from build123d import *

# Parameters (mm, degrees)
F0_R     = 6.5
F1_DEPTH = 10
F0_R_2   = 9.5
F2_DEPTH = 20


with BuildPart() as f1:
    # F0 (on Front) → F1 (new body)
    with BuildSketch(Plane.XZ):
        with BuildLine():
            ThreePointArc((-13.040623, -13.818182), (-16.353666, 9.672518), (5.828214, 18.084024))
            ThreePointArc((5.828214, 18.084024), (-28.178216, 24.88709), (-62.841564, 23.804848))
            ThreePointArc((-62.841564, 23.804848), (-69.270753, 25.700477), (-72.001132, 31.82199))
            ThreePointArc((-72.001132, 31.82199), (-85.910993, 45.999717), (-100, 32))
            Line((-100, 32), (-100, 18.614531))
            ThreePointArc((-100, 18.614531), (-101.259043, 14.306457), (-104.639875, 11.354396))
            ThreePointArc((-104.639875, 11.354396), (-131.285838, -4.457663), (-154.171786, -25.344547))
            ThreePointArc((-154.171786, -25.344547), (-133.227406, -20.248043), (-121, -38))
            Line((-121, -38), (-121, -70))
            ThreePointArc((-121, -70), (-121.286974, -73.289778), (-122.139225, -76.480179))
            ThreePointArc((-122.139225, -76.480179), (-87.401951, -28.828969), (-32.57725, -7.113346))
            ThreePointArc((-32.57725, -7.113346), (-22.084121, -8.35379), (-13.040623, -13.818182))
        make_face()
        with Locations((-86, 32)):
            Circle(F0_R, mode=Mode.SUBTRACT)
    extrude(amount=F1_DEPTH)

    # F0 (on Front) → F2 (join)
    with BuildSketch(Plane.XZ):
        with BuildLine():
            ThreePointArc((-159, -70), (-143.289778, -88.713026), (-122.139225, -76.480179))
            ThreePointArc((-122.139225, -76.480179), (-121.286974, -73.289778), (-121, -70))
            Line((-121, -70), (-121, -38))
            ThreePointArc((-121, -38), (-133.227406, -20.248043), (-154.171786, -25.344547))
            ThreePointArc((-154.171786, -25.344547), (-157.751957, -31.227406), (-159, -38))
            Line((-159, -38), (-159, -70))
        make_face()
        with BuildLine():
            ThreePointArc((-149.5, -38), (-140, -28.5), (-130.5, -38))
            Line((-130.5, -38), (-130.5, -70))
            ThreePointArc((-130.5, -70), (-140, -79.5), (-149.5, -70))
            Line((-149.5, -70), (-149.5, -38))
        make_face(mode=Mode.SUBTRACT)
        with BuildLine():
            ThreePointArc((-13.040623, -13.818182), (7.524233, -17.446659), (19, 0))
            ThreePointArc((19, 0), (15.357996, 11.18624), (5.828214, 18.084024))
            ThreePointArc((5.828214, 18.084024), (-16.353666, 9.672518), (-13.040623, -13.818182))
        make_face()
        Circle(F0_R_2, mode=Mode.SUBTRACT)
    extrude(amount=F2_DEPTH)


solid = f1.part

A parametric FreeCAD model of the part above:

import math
import FreeCAD as App
import Part
import Sketcher
Q = App.Units.Quantity

doc = App.newDocument("Part")
params = doc.addObject("Spreadsheet::Sheet", "Params")
for row, (alias, value) in enumerate([
    ("sketch1_diameter", "13 mm"),
    ("sketch1_radius", "19 mm"),
    ("sketch1_radius2", "8.000001 mm"),
    ("sketch1_radius3", "14 mm"),
    ("sketch1_radius4", "106 mm"),
    ("pad1_length", "10 mm"),
    ("sketch2_diameter", "19 mm"),
    ("sketch2_radius", "19 mm"),
    ("sketch2_radius2", "19 mm"),
    ("sketch2_radius3", "19 mm"),
    ("sketch2_radius4", "9.5 mm"),
    ("pad2_length", "20 mm"),
], start=1):
    params.set(f"A{row}", alias)
    params.set(f"B{row}", "=" + value)
    params.setAlias(f"B{row}", alias)

body = doc.addObject("PartDesign::Body", "Body")

sketch1 = body.newObject("Sketcher::SketchObject", "Sketch")
sketch1.AttachmentSupport = (doc.getObject("XZ_Plane"), [""])
sketch1.MapMode = "FlatFace"
sketch1.addGeometry(Part.ArcOfCircle(Part.Circle(App.Vector(0, 0, 0), App.Vector(0, 0, 1), 19), math.radians(72), math.radians(227)), False)
sketch1.addGeometry(Part.ArcOfCircle(Part.Circle(App.Vector(-41, -127, 0), App.Vector(0, 0, 1), 152), math.radians(72), math.radians(98)), False)
sketch1.addGeometry(Part.ArcOfCircle(Part.Circle(App.Vector(-64, 32, 0), App.Vector(0, 0, 1), 8), math.radians(179), math.radians(278)), False)
sketch1.addGeometry(Part.ArcOfCircle(Part.Circle(App.Vector(-86, 32, 0), App.Vector(0, 0, 1), 14), math.radians(-1), math.radians(180)), False)
sketch1.addGeometry(Part.LineSegment(App.Vector(-100, 32, 0), App.Vector(-100, 19, 0)), False)
sketch1.addGeometry(Part.ArcOfCircle(Part.Circle(App.Vector(-108, 19, 0), App.Vector(0, 0, 1), 8), math.radians(-65), math.radians(0)), False)
sketch1.addGeometry(Part.ArcOfCircle(Part.Circle(App.Vector(-41, -127, 0), App.Vector(0, 0, 1), 152), math.radians(115), math.radians(138)), False)
sketch1.addGeometry(Part.ArcOfCircle(Part.Circle(App.Vector(-140, -38, 0), App.Vector(0, 0, 1), 19), math.radians(0), math.radians(138)), False)
sketch1.addGeometry(Part.LineSegment(App.Vector(-121, -38, 0), App.Vector(-121, -70, 0)), False)
sketch1.addGeometry(Part.ArcOfCircle(Part.Circle(App.Vector(-140, -70, 0), App.Vector(0, 0, 1), 19), math.radians(-19.94), math.radians(0)), False)
sketch1.addGeometry(Part.ArcOfCircle(Part.Circle(App.Vector(-22, -113, 0), App.Vector(0, 0, 1), 106), math.radians(95), math.radians(160)), False)
sketch1.addGeometry(Part.ArcOfCircle(Part.Circle(App.Vector(-30, -32, 0), App.Vector(0, 0, 1), 25), math.radians(47), math.radians(95)), False)
sketch1.addGeometry(Part.Circle(App.Vector(-86, 32, 0), App.Vector(0, 0, 1), 6), False)
sketch1.addConstraint(Sketcher.Constraint("Tangent", 0, 1, 1, 1))
sketch1.addConstraint(Sketcher.Constraint("Tangent", 1, 2, 2, 2))
sketch1.addConstraint(Sketcher.Constraint("Tangent", 2, 1, 3, 1))
sketch1.addConstraint(Sketcher.Constraint("Tangent", 3, 2, 4, 1))
sketch1.addConstraint(Sketcher.Constraint("Tangent", 4, 2, 5, 2))
sketch1.addConstraint(Sketcher.Constraint("Tangent", 5, 1, 6, 1))
sketch1.addConstraint(Sketcher.Constraint("Tangent", 6, 2, 7, 2))
sketch1.addConstraint(Sketcher.Constraint("Tangent", 7, 1, 8, 1))
sketch1.addConstraint(Sketcher.Constraint("Tangent", 8, 2, 9, 2))
sketch1.addConstraint(Sketcher.Constraint("Tangent", 9, 1, 10, 2))
sketch1.addConstraint(Sketcher.Constraint("Tangent", 10, 1, 11, 2))
sketch1.addConstraint(Sketcher.Constraint("Tangent", 11, 1, 0, 2))
sketch1.addConstraint(Sketcher.Constraint("Vertical", 4))
sketch1.addConstraint(Sketcher.Constraint("Vertical", 8))
sketch1.addConstraint(Sketcher.Constraint("Coincident", 0, 3, -1, 1))
sketch1.addConstraint(Sketcher.Constraint("Coincident", 6, 3, 1, 3))
sketch1.addConstraint(Sketcher.Constraint("Coincident", 12, 3, 3, 3))
sketch1.addConstraint(Sketcher.Constraint("Equal", 2, 5))
sketch1.addConstraint(Sketcher.Constraint("Equal", 0, 7))
sketch1.addConstraint(Sketcher.Constraint("Diameter", 12, Q("13 mm")))
sketch1.addConstraint(Sketcher.Constraint("Radius", 0, Q("19 mm")))
sketch1.addConstraint(Sketcher.Constraint("Radius", 2, Q("8.000001 mm")))
sketch1.addConstraint(Sketcher.Constraint("Radius", 3, Q("14 mm")))
sketch1.addConstraint(Sketcher.Constraint("Radius", 10, Q("106 mm")))
sketch1.addConstraint(Sketcher.Constraint("DistanceY", 8, 2, 8, 1, Q("32 mm")))
sketch1.addConstraint(Sketcher.Constraint("DistanceX", 3, 3, -1, 1, Q("86 mm")))
sketch1.addConstraint(Sketcher.Constraint("DistanceY", -1, 1, 3, 3, Q("32 mm")))
sketch1.addConstraint(Sketcher.Constraint("DistanceX", 7, 3, -1, 1, Q("140 mm")))
sketch1.addConstraint(Sketcher.Constraint("DistanceY", 7, 3, -1, 1, Q("38 mm")))
sketch1.addConstraint(Sketcher.Constraint("Radius", 1, Q("152.000009 mm")))
sketch1.addConstraint(Sketcher.Constraint("Radius", 6, Q("152.000014 mm")))
sketch1.addConstraint(Sketcher.Constraint("Radius", 9, Q("19.000035 mm")))
sketch1.addConstraint(Sketcher.Constraint("Radius", 11, Q("25.000003 mm")))
sketch1.addConstraint(Sketcher.Constraint("DistanceX", 7, 3, 10, 3, Q("117.505098 mm")))
sketch1.setExpression("Constraints[19]", "Params.sketch1_diameter")
sketch1.setExpression("Constraints[20]", "Params.sketch1_radius")
sketch1.setExpression("Constraints[21]", "Params.sketch1_radius2")
sketch1.setExpression("Constraints[22]", "Params.sketch1_radius3")
sketch1.setExpression("Constraints[23]", "Params.sketch1_radius4")
pad1 = body.newObject("PartDesign::Pad", "Pad")
pad1.Profile = sketch1
pad1.setExpression("Length", "Params.pad1_length")

sketch2 = body.newObject("Sketcher::SketchObject", "Sketch001")
sketch2.AttachmentSupport = (doc.getObject("XZ_Plane"), [""])
sketch2.MapMode = "FlatFace"
sketch2.addGeometry(Part.ArcOfCircle(Part.Circle(App.Vector(-140, -69.999999, 0), App.Vector(0, 0, 1), 19), math.radians(-179.999998), math.radians(-19.941595)), False)
sketch2.addGeometry(Part.ArcOfCircle(Part.Circle(App.Vector(-140.000035, -69.999994, 0), App.Vector(0, 0, 1), 19.000035), math.radians(-19.941574), math.radians(-0.000018)), False)
sketch2.addGeometry(Part.LineSegment(App.Vector(-121, -70, 0), App.Vector(-121, -38, 0)), False)
sketch2.addGeometry(Part.ArcOfCircle(Part.Circle(App.Vector(-140, -38, 0), App.Vector(0, 0, 1), 19), math.radians(0), math.radians(138.235038)), False)
sketch2.addGeometry(Part.ArcOfCircle(Part.Circle(App.Vector(-140.000001, -37.999999, 0), App.Vector(0, 0, 1), 18.999999), math.radians(138.235038), math.radians(180.000002)), False)
sketch2.addGeometry(Part.LineSegment(App.Vector(-159, -38, 0), App.Vector(-159, -70, 0)), False)
sketch2.addGeometry(Part.LineSegment(App.Vector(-149.5, -70, 0), App.Vector(-149.5, -38, 0)), False)
sketch2.addGeometry(Part.ArcOfCircle(Part.Circle(App.Vector(-140, -38, 0), App.Vector(0, 0, 1), 9.5), math.radians(0), math.radians(180)), False)
sketch2.addGeometry(Part.LineSegment(App.Vector(-130.5, -38, 0), App.Vector(-130.5, -70, 0)), False)
sketch2.addGeometry(Part.ArcOfCircle(Part.Circle(App.Vector(-140, -70, 0), App.Vector(0, 0, 1), 9.5), math.radians(180), math.radians(360)), False)
sketch2.addGeometry(Part.ArcOfCircle(Part.Circle(App.Vector(0, 0, 0), App.Vector(0, 0, 1), 19), math.radians(-133.341757), math.radians(-0.000001)), False)
sketch2.addGeometry(Part.ArcOfCircle(Part.Circle(App.Vector(0.000001, 0, 0), App.Vector(0, 0, 1), 18.999999), math.radians(-0.000001), math.radians(72.136636)), False)
sketch2.addGeometry(Part.ArcOfCircle(Part.Circle(App.Vector(0, 0, 0), App.Vector(0, 0, 1), 19), math.radians(72.136636), math.radians(226.658242)), False)
sketch2.addGeometry(Part.Circle(App.Vector(0, 0, 0), App.Vector(0, 0, 1), 9.5), False)
sketch2.addConstraint(Sketcher.Constraint("Coincident", 0, 2, 1, 1))
sketch2.addConstraint(Sketcher.Constraint("Coincident", 1, 2, 2, 1))
sketch2.addConstraint(Sketcher.Constraint("Coincident", 2, 2, 3, 1))
sketch2.addConstraint(Sketcher.Constraint("Coincident", 3, 2, 4, 1))
sketch2.addConstraint(Sketcher.Constraint("Coincident", 4, 2, 5, 1))
sketch2.addConstraint(Sketcher.Constraint("Coincident", 5, 2, 0, 1))
sketch2.addConstraint(Sketcher.Constraint("Coincident", 6, 2, 7, 2))
sketch2.addConstraint(Sketcher.Constraint("Coincident", 7, 1, 8, 1))
sketch2.addConstraint(Sketcher.Constraint("Coincident", 8, 2, 9, 2))
sketch2.addConstraint(Sketcher.Constraint("Coincident", 9, 1, 6, 1))
sketch2.addConstraint(Sketcher.Constraint("Coincident", 10, 2, 11, 1))
sketch2.addConstraint(Sketcher.Constraint("Coincident", 11, 2, 12, 1))
sketch2.addConstraint(Sketcher.Constraint("Coincident", 12, 2, 10, 1))
sketch2.addConstraint(Sketcher.Constraint("Vertical", 2))
sketch2.addConstraint(Sketcher.Constraint("Vertical", 5))
sketch2.addConstraint(Sketcher.Constraint("Vertical", 6))
sketch2.addConstraint(Sketcher.Constraint("Vertical", 8))
sketch2.addConstraint(Sketcher.Constraint("Coincident", 10, 3, -1, 1))
sketch2.addConstraint(Sketcher.Constraint("Coincident", 11, 3, -1, 1))
sketch2.addConstraint(Sketcher.Constraint("Coincident", 13, 3, -1, 1))
sketch2.addConstraint(Sketcher.Constraint("Coincident", 4, 3, 3, 3))
sketch2.addConstraint(Sketcher.Constraint("Coincident", 7, 3, 3, 3))
sketch2.addConstraint(Sketcher.Constraint("Coincident", 9, 3, 0, 3))
sketch2.addConstraint(Sketcher.Constraint("PointOnObject", 10, 2, -1))
sketch2.addConstraint(Sketcher.Constraint("Diameter", 13, Q("19 mm")))
sketch2.addConstraint(Sketcher.Constraint("Radius", 0, Q("19 mm")))
sketch2.addConstraint(Sketcher.Constraint("Radius", 10, Q("19 mm")))
sketch2.addConstraint(Sketcher.Constraint("Radius", 12, Q("19 mm")))
sketch2.addConstraint(Sketcher.Constraint("Radius", 7, Q("9.5 mm")))
sketch2.addConstraint(Sketcher.Constraint("DistanceY", 2, 1, 2, 2, Q("32 mm")))
sketch2.addConstraint(Sketcher.Constraint("DistanceY", 5, 2, 5, 1, Q("32 mm")))
sketch2.addConstraint(Sketcher.Constraint("DistanceY", 6, 1, 6, 2, Q("32 mm")))
sketch2.addConstraint(Sketcher.Constraint("DistanceY", 8, 2, 8, 1, Q("32 mm")))
sketch2.addConstraint(Sketcher.Constraint("DistanceX", 0, 3, -1, 1, Q("140 mm")))
sketch2.addConstraint(Sketcher.Constraint("DistanceY", 0, 3, -1, 1, Q("69.999999 mm")))
sketch2.addConstraint(Sketcher.Constraint("DistanceY", 3, 3, -1, 1, Q("38 mm")))
sketch2.addConstraint(Sketcher.Constraint("DistanceY", 1, 2, -1, 1, Q("70 mm")))
sketch2.addConstraint(Sketcher.Constraint("DistanceY", 4, 2, -1, 1, Q("38 mm")))
sketch2.addConstraint(Sketcher.Constraint("DistanceY", 6, 2, -1, 1, Q("38 mm")))
sketch2.addConstraint(Sketcher.Constraint("DistanceY", 7, 1, -1, 1, Q("38 mm")))
sketch2.addConstraint(Sketcher.Constraint("Radius", 1, Q("19.000035 mm")))
sketch2.addConstraint(Sketcher.Constraint("DistanceY", 0, 2, -1, 1, Q("76.480179 mm")))
sketch2.addConstraint(Sketcher.Constraint("DistanceX", 3, 2, 1, 3, Q("14.171751 mm")))
sketch2.addConstraint(Sketcher.Constraint("DistanceY", 12, 2, 12, 3, Q("13.818182 mm")))
sketch2.addConstraint(Sketcher.Constraint("DistanceX", -1, 1, 11, 2, Q("5.828214 mm")))
sketch2.setExpression("Constraints[24]", "Params.sketch2_diameter")
sketch2.setExpression("Constraints[25]", "Params.sketch2_radius")
sketch2.setExpression("Constraints[26]", "Params.sketch2_radius2")
sketch2.setExpression("Constraints[27]", "Params.sketch2_radius3")
sketch2.setExpression("Constraints[28]", "Params.sketch2_radius4")
pad2 = body.newObject("PartDesign::Pad", "Pad001")
pad2.Profile = sketch2
pad2.setExpression("Length", "Params.pad2_length")

doc.recompute()
